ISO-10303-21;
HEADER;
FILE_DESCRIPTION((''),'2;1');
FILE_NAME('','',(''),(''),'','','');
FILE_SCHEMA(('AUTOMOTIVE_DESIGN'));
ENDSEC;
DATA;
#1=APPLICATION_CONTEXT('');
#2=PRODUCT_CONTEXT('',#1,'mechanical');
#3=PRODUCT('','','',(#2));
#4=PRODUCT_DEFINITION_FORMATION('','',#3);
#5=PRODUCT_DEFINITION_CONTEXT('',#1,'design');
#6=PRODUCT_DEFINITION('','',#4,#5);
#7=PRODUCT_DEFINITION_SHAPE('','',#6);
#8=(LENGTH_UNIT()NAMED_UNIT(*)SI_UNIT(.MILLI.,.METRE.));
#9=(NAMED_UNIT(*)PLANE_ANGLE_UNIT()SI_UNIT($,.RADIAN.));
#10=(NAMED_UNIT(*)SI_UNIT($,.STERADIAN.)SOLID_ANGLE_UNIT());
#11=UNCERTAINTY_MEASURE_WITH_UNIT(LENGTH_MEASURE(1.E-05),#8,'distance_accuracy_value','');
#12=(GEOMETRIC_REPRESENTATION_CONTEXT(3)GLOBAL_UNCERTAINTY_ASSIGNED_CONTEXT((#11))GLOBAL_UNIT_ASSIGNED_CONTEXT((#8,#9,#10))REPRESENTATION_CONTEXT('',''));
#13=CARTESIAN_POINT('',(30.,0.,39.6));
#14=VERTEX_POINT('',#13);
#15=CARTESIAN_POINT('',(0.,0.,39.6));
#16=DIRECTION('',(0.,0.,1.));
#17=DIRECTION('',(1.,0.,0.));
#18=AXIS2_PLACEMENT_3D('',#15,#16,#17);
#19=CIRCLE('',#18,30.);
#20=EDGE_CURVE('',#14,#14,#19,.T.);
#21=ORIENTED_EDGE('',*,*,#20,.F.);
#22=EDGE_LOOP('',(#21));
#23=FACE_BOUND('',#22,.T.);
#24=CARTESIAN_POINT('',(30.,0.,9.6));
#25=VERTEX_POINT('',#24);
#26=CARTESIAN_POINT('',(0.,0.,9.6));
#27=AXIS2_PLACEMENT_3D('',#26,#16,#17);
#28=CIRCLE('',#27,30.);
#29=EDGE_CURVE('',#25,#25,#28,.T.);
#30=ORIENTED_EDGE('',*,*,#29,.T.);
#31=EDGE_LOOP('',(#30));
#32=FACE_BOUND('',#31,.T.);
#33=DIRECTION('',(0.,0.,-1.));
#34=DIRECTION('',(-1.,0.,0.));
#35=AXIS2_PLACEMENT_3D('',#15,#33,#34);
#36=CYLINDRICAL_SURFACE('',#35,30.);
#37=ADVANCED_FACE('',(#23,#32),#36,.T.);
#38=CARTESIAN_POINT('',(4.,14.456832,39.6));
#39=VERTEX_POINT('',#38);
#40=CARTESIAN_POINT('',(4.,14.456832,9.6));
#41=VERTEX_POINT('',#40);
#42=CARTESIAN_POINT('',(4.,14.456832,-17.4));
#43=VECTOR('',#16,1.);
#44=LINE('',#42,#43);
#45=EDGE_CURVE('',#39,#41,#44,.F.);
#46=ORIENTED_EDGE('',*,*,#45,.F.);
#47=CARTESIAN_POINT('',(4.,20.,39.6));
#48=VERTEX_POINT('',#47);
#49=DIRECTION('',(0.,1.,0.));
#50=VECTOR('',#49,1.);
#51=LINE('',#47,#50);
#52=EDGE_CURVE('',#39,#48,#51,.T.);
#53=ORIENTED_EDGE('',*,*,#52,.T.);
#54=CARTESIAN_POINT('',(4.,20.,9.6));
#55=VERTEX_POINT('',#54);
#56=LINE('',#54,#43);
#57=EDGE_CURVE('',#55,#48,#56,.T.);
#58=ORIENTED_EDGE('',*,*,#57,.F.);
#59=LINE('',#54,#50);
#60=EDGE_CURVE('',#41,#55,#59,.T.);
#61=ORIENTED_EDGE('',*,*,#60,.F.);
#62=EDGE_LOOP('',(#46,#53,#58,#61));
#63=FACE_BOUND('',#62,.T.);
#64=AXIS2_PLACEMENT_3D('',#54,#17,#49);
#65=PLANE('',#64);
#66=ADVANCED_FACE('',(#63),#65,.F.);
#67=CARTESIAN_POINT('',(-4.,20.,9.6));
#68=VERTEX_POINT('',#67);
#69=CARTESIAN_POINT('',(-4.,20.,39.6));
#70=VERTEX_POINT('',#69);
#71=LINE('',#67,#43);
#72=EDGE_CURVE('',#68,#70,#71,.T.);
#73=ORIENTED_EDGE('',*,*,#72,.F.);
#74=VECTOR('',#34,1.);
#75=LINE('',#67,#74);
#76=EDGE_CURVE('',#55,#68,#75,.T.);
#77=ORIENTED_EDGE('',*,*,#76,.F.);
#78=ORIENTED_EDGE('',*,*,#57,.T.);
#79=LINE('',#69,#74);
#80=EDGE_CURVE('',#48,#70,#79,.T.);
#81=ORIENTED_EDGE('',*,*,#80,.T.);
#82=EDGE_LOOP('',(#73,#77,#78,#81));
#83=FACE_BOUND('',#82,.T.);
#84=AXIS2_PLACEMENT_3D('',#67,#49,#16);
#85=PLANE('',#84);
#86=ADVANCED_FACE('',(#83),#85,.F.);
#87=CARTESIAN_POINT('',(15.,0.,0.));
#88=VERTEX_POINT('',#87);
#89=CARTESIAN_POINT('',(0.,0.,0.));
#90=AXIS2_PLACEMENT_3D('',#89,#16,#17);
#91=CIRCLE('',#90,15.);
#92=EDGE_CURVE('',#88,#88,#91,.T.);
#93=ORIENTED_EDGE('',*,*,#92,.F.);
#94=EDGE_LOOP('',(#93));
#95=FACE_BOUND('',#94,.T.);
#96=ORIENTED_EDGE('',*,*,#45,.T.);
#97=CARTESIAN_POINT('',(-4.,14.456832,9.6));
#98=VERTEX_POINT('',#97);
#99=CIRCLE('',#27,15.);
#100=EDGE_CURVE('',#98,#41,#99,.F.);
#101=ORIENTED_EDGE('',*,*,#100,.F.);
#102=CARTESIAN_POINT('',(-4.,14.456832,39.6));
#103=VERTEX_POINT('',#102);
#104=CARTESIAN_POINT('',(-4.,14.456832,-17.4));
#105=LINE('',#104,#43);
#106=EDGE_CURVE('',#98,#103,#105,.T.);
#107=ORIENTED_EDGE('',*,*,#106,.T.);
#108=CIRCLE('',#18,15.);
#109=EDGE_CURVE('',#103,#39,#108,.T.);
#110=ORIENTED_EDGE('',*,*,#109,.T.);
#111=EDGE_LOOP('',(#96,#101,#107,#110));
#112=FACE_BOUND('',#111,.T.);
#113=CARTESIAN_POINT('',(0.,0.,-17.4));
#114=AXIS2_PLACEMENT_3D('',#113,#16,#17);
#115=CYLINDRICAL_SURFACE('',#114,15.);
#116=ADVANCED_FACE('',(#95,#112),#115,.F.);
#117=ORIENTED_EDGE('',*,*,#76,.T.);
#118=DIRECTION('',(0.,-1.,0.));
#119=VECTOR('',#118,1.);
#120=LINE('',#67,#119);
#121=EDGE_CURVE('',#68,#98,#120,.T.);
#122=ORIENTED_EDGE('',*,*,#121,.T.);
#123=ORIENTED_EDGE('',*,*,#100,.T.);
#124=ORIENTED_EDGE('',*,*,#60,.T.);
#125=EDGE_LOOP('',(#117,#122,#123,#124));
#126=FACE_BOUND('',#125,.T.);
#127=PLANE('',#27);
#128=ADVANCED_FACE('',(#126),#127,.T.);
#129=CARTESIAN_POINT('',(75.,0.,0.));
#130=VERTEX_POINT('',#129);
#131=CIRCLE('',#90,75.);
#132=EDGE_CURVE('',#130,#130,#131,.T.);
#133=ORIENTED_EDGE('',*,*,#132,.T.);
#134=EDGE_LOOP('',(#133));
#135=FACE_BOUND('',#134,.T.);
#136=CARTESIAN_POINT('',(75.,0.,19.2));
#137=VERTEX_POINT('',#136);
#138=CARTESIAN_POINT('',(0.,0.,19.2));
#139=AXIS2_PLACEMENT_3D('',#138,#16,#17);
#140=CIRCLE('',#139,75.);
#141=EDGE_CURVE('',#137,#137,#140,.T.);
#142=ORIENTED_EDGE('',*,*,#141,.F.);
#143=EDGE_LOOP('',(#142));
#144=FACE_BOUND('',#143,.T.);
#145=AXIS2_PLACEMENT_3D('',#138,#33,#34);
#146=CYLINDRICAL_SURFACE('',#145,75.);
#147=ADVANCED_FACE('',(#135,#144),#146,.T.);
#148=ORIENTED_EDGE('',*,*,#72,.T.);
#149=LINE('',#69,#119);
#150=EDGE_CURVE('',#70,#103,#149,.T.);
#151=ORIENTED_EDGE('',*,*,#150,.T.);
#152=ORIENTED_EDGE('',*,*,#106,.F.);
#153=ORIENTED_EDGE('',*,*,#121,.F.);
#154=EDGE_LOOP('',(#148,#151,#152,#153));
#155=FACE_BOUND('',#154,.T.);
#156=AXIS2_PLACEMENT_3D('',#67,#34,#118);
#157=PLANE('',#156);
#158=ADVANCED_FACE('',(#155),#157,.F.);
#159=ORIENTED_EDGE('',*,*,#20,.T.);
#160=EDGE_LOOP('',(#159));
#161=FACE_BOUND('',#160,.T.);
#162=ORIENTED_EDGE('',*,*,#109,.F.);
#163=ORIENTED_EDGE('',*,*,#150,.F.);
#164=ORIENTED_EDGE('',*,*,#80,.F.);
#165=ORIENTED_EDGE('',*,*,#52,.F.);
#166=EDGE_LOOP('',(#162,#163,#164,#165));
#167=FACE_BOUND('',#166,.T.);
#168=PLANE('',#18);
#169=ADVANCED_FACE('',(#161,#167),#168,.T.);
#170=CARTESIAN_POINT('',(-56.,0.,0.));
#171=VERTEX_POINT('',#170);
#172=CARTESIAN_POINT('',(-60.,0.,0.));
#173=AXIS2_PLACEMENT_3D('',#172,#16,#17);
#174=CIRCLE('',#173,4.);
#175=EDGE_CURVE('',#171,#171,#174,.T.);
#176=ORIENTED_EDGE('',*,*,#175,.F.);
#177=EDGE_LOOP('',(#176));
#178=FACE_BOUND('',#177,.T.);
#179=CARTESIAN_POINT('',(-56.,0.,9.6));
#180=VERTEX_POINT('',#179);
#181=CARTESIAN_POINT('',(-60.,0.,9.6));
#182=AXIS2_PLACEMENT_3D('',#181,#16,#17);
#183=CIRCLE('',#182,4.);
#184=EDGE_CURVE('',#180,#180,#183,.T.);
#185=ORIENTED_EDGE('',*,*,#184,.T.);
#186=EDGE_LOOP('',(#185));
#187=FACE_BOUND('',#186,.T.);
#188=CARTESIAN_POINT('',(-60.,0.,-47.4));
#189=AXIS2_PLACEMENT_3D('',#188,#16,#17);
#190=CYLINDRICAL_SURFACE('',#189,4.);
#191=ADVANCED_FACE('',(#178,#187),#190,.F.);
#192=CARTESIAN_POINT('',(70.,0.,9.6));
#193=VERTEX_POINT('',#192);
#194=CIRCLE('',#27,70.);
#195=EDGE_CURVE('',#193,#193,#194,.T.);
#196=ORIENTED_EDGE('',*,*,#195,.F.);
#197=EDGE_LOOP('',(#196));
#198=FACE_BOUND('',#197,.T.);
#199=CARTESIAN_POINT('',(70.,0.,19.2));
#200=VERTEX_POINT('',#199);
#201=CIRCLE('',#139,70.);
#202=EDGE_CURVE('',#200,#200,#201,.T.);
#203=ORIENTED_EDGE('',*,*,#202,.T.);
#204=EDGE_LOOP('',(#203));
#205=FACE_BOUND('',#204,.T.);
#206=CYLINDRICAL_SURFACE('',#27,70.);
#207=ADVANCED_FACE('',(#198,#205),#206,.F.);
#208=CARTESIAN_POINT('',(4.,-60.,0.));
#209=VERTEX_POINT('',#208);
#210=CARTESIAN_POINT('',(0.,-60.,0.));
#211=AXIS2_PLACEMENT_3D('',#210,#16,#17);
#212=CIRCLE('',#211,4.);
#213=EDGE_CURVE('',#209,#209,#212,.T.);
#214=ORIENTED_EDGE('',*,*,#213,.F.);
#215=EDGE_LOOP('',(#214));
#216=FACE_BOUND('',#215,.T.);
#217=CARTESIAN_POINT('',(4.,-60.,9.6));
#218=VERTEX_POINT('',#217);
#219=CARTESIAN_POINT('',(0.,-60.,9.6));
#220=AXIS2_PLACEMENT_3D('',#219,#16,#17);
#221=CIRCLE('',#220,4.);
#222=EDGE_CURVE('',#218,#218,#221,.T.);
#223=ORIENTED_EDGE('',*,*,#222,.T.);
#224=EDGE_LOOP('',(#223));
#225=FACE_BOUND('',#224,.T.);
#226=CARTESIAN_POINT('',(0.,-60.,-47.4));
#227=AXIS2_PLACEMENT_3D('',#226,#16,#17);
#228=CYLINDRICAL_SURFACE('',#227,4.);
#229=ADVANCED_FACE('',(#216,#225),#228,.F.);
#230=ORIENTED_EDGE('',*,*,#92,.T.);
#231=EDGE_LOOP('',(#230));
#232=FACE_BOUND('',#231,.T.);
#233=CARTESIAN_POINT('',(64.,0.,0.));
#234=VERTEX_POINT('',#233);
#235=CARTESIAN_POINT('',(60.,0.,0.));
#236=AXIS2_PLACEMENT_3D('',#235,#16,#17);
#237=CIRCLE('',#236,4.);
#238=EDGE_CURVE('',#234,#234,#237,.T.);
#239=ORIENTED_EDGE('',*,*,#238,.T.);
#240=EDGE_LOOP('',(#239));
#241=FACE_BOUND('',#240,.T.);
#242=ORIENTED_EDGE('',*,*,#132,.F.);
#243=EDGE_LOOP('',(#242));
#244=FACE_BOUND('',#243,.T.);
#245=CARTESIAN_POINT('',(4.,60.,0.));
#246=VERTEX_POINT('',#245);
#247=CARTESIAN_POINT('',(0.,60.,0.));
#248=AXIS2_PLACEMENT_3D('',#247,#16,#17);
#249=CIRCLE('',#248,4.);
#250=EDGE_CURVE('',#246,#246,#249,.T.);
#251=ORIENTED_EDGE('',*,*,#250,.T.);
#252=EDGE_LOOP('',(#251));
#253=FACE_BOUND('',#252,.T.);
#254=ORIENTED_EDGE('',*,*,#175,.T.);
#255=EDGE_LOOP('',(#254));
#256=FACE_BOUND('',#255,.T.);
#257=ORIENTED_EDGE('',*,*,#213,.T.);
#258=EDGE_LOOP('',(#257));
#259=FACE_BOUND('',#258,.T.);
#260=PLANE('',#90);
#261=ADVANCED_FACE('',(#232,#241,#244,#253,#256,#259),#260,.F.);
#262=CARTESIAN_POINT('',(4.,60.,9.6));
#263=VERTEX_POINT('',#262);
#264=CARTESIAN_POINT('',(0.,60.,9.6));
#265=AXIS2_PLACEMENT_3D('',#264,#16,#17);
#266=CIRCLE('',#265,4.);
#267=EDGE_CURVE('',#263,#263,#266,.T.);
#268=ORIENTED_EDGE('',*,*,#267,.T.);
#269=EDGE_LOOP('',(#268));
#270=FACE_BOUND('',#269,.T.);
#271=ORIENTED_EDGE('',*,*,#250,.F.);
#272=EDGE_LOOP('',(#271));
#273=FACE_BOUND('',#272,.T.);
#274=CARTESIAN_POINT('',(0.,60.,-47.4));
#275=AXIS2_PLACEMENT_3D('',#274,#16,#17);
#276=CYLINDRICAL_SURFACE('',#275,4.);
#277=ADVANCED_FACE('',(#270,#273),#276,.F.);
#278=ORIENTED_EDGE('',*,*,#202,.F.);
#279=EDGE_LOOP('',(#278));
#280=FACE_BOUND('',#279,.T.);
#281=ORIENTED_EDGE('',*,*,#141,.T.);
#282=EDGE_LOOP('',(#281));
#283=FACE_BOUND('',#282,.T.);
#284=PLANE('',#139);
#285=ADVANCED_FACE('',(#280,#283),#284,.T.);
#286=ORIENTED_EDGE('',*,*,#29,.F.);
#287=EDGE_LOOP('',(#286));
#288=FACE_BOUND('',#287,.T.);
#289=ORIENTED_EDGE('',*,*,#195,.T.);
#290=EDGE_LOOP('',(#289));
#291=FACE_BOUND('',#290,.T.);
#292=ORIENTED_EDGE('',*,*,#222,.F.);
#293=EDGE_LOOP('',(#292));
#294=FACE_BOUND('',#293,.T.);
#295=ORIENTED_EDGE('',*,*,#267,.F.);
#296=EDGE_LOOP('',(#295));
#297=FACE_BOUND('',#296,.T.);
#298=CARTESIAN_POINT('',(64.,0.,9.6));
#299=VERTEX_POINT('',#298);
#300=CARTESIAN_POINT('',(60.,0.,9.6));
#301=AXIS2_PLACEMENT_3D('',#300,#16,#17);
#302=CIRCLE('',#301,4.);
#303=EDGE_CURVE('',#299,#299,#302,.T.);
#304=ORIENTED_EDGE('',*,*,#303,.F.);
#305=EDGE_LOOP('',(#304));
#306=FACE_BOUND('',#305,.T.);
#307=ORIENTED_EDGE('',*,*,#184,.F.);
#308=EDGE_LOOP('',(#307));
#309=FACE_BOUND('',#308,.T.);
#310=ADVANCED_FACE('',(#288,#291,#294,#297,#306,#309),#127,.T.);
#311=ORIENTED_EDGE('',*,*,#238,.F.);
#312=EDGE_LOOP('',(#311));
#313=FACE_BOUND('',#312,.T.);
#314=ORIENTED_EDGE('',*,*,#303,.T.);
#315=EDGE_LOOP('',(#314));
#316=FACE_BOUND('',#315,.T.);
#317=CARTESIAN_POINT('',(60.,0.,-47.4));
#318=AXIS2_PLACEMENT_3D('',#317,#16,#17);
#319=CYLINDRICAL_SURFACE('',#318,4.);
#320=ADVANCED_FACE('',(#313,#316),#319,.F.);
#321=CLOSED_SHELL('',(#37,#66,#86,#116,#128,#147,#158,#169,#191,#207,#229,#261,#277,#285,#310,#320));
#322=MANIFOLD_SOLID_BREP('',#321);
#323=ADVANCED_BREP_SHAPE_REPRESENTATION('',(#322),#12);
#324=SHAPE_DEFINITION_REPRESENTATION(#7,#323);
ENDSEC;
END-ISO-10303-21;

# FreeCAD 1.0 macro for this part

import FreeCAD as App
import Part
import Sketcher

V = App.Vector


def add_polygon(sketch, points):
    """Adds a closed chain of lines whose ends are joined by coincident constraints."""
    first, n = sketch.GeometryCount, len(points)
    for a, b in zip(points, points[1:] + points[:1]):
        sketch.addGeometry(Part.LineSegment(App.Vector(*a, 0), App.Vector(*b, 0)), False)
    for i in range(n):
        sketch.addConstraint(Sketcher.Constraint("Coincident", first + i, 2, first + (i + 1) % n, 1))

doc = App.newDocument("Part")
body = doc.addObject("PartDesign::Body", "Body")

# Sketch on XY plane
sketch1 = body.newObject("Sketcher::SketchObject", "Sketch")
sketch1.AttachmentSupport = (doc.getObject("XY_Plane"), [""])
sketch1.MapMode = "FlatFace"
sketch1.addGeometry(Part.Circle(V(0, 0, 0), V(0, 0, 1), 75), False)
sketch1.addConstraint(Sketcher.Constraint("Coincident", 0, 3, -1, 1))
sketch1.addConstraint(Sketcher.Constraint("Diameter", 0, 150.0))
pad1 = body.newObject("PartDesign::Pad", "Pad")
pad1.Profile = sketch1
pad1.Length = 19.2

# Sketch on XY plane
sketch2 = body.newObject("Sketcher::SketchObject", "Sketch001")
sketch2.AttachmentSupport = (doc.getObject("XY_Plane"), [""])
sketch2.MapMode = "FlatFace"
sketch2.AttachmentOffset = App.Placement(V(0, 0, 19.2), App.Rotation())
sketch2.addGeometry(Part.Circle(V(0, 0, 0), V(0, 0, 1), 70), False)
sketch2.addConstraint(Sketcher.Constraint("Coincident", 0, 3, -1, 1))
sketch2.addConstraint(Sketcher.Constraint("Diameter", 0, 140.0))
pocket1 = body.newObject("PartDesign::Pocket", "Pocket")
pocket1.Profile = sketch2
pocket1.Length = 9.6

# Sketch on XY plane
sketch3 = body.newObject("Sketcher::SketchObject", "Sketch002")
sketch3.AttachmentSupport = (doc.getObject("XY_Plane"), [""])
sketch3.MapMode = "FlatFace"
sketch3.AttachmentOffset = App.Placement(V(0, 0, 9.6), App.Rotation())
sketch3.addGeometry(Part.Circle(V(0, 0, 0), V(0, 0, 1), 30), False)
sketch3.addConstraint(Sketcher.Constraint("Coincident", 0, 3, -1, 1))
sketch3.addConstraint(Sketcher.Constraint("Diameter", 0, 60.0))
pad2 = body.newObject("PartDesign::Pad", "Pad001")
pad2.Profile = sketch3
pad2.Length = 30

# Sketch on XY plane
sketch4 = body.newObject("Sketcher::SketchObject", "Sketch003")
sketch4.AttachmentSupport = (doc.getObject("XY_Plane"), [""])
sketch4.MapMode = "FlatFace"
sketch4.AttachmentOffset = App.Placement(V(0, 0, 39.6), App.Rotation())
sketch4.addGeometry(Part.Circle(V(0, 0, 0), V(0, 0, 1), 15), False)
sketch4.addConstraint(Sketcher.Constraint("Coincident", 0, 3, -1, 1))
sketch4.addConstraint(Sketcher.Constraint("Diameter", 0, 30.0))
pocket2 = body.newObject("PartDesign::Pocket", "Pocket001")
pocket2.Profile = sketch4
pocket2.Length = 57

# Sketch on XY plane
sketch5 = body.newObject("Sketcher::SketchObject", "Sketch004")
sketch5.AttachmentSupport = (doc.getObject("XY_Plane"), [""])
sketch5.MapMode = "FlatFace"
sketch5.AttachmentOffset = App.Placement(V(0, 0, 9.6), App.Rotation())
sketch5.addGeometry(Part.Circle(V(0, 60, 0), V(0, 0, 1), 4), False)
sketch5.addGeometry(Part.Circle(V(60, 0, 0), V(0, 0, 1), 4), False)
sketch5.addGeometry(Part.Circle(V(0, -60, 0), V(0, 0, 1), 4), False)
sketch5.addGeometry(Part.Circle(V(-60, 0, 0), V(0, 0, 1), 4), False)
sketch5.addConstraint(Sketcher.Constraint("Equal", 0, 1))
sketch5.addConstraint(Sketcher.Constraint("Equal", 1, 2))
sketch5.addConstraint(Sketcher.Constraint("Equal", 2, 3))
sketch5.addConstraint(Sketcher.Constraint("Symmetric", 0, 3, 2, 3, -1, 1))
sketch5.addConstraint(Sketcher.Constraint("Symmetric", 1, 3, 3, 3, -1, 1))
sketch5.addConstraint(Sketcher.Constraint("PointOnObject", 0, 3, -2))
sketch5.addConstraint(Sketcher.Constraint("PointOnObject", 1, 3, -1))
sketch5.addConstraint(Sketcher.Constraint("Diameter", 0, 8.0))
sketch5.addConstraint(Sketcher.Constraint("DistanceY", -1, 1, 0, 3, 60.0))
sketch5.addConstraint(Sketcher.Constraint("DistanceX", -1, 1, 1, 3, 60.0))
pocket3 = body.newObject("PartDesign::Pocket", "Pocket002")
pocket3.Profile = sketch5
pocket3.Length = 57

# Sketch on XY plane
sketch6 = body.newObject("Sketcher::SketchObject", "Sketch005")
sketch6.AttachmentSupport = (doc.getObject("XY_Plane"), [""])
sketch6.MapMode = "FlatFace"
sketch6.AttachmentOffset = App.Placement(V(0, 0, 39.6), App.Rotation())
add_polygon(sketch6, [(-4, 20), (-4, 10), (4, 10), (4, 20)])  # lines 0-3
sketch6.addConstraint(Sketcher.Constraint("Vertical", 0))
sketch6.addConstraint(Sketcher.Constraint("Horizontal", 1))
sketch6.addConstraint(Sketcher.Constraint("Vertical", 2))
sketch6.addConstraint(Sketcher.Constraint("Horizontal", 3))
sketch6.addConstraint(Sketcher.Constraint("DistanceX", 1, 1, 1, 2, 8.0))
sketch6.addConstraint(Sketcher.Constraint("DistanceY", 0, 2, 0, 1, 10.0))
sketch6.addConstraint(Sketcher.Constraint("DistanceX", 0, 2, -1, 1, 4.0))
sketch6.addConstraint(Sketcher.Constraint("DistanceY", -1, 1, 0, 2, 10.0))
pocket4 = body.newObject("PartDesign::Pocket", "Pocket003")
pocket4.Profile = sketch6
pocket4.Length = 30

doc.recompute()
